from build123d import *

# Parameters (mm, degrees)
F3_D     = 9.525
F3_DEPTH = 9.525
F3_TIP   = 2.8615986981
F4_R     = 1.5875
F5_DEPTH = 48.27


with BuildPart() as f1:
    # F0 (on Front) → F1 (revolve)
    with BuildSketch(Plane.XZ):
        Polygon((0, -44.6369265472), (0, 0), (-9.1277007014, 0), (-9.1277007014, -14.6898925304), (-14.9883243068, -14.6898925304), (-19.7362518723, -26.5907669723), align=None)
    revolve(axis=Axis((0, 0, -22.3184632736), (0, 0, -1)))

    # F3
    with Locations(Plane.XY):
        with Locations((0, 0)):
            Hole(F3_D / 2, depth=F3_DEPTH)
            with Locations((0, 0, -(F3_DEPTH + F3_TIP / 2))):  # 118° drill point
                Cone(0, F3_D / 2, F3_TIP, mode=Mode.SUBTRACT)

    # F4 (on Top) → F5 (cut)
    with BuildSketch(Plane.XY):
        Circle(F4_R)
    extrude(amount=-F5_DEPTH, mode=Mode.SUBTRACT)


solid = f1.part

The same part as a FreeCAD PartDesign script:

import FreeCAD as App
import Part
import Sketcher

V = App.Vector
Q = App.Units.Quantity

doc = App.newDocument("Part")
body = doc.addObject("PartDesign::Body", "Body")

sketch1 = doc.addObject("Sketcher::SketchObject", "Sketch")
body.addObject(sketch1)
sketch1.AttachmentSupport = (doc.XZ_Plane, [""])
sketch1.MapMode = "FlatFace"
sketch1.addGeometry(Part.LineSegment(V(0, -45, 0), V(0, 0, 0)), False)
sketch1.addGeometry(Part.LineSegment(V(0, 0, 0), V(-9, 0, 0)), False)
sketch1.addGeometry(Part.LineSegment(V(-9, 0, 0), V(-9, -15, 0)), False)
sketch1.addGeometry(Part.LineSegment(V(-9, -15, 0), V(-15, -15, 0)), False)
sketch1.addGeometry(Part.LineSegment(V(-15, -15, 0), V(-20, -27, 0)), False)
sketch1.addGeometry(Part.LineSegment(V(-20, -27, 0), V(0, -45, 0)), False)
sketch1.addConstraint(Sketcher.Constraint("Coincident", 0, 2, 1, 1))
sketch1.addConstraint(Sketcher.Constraint("Coincident", 1, 2, 2, 1))
sketch1.addConstraint(Sketcher.Constraint("Coincident", 2, 2, 3, 1))
sketch1.addConstraint(Sketcher.Constraint("Coincident", 3, 2, 4, 1))
sketch1.addConstraint(Sketcher.Constraint("Coincident", 4, 2, 5, 1))
sketch1.addConstraint(Sketcher.Constraint("Coincident", 5, 2, 0, 1))
sketch1.addConstraint(Sketcher.Constraint("Vertical", 0))
sketch1.addConstraint(Sketcher.Constraint("Horizontal", 1))
sketch1.addConstraint(Sketcher.Constraint("Vertical", 2))
sketch1.addConstraint(Sketcher.Constraint("Horizontal", 3))
sketch1.addConstraint(Sketcher.Constraint("Coincident", 0, 2, -1, 1))
sketch1.addConstraint(Sketcher.Constraint("DistanceX", 1, 2, 1, 1, 9.127701))
sketch1.addConstraint(Sketcher.Constraint("DistanceX", 3, 2, 3, 1, 5.860624))
sketch1.addConstraint(Sketcher.Constraint("DistanceY", 0, 1, 0, 2, 44.636927))
sketch1.addConstraint(Sketcher.Constraint("DistanceY", 2, 2, 2, 1, 14.689893))
sketch1.addConstraint(Sketcher.Constraint("DistanceX", 4, 2, -1, 1, 19.736252))
sketch1.addConstraint(Sketcher.Constraint("DistanceY", 5, 2, 4, 2, 18.04616))
revolution = doc.addObject("PartDesign::Revolution", "Revolution")
body.addObject(revolution)
revolution.Profile = sketch1
revolution.ReferenceAxis = (sketch1, ["V_Axis"])
revolution.Angle = 360

sketch2 = doc.addObject("Sketcher::SketchObject", "Sketch001")
body.addObject(sketch2)
sketch2.AttachmentSupport = (doc.XY_Plane, [""])
sketch2.MapMode = "FlatFace"
sketch2.addGeometry(Part.Circle(V(0, 0, 0), V(0, 0, 1), 4.8), False)
sketch2.addConstraint(Sketcher.Constraint("Coincident", 0, 3, -1, 1))
sketch2.addConstraint(Sketcher.Constraint("Diameter", 0, Q("0.375 in")))
doc.recompute()
hole = doc.addObject("PartDesign::Hole", "Hole")
body.addObject(hole)
hole.Profile = sketch2
hole.ThreadType = "None"
hole.Diameter = Q("0.375 in")
hole.DepthType = "Dimension"
hole.Depth = Q("0.375 in")
hole.DrillPoint = "Angled"
hole.DrillPointAngle = 118

sketch3 = doc.addObject("Sketcher::SketchObject", "Sketch002")
body.addObject(sketch3)
sketch3.AttachmentSupport = (doc.XY_Plane, [""])
sketch3.MapMode = "FlatFace"
sketch3.addGeometry(Part.Circle(V(0, 0, 0), V(0, 0, 1), 1.6), False)
sketch3.addConstraint(Sketcher.Constraint("Coincident", 0, 3, -1, 1))
sketch3.addConstraint(Sketcher.Constraint("Diameter", 0, Q("0.125 in")))
pocket1 = doc.addObject("PartDesign::Pocket", "Pocket")
body.addObject(pocket1)
pocket1.Profile = sketch3
pocket1.Length = 48.27

doc.recompute()
